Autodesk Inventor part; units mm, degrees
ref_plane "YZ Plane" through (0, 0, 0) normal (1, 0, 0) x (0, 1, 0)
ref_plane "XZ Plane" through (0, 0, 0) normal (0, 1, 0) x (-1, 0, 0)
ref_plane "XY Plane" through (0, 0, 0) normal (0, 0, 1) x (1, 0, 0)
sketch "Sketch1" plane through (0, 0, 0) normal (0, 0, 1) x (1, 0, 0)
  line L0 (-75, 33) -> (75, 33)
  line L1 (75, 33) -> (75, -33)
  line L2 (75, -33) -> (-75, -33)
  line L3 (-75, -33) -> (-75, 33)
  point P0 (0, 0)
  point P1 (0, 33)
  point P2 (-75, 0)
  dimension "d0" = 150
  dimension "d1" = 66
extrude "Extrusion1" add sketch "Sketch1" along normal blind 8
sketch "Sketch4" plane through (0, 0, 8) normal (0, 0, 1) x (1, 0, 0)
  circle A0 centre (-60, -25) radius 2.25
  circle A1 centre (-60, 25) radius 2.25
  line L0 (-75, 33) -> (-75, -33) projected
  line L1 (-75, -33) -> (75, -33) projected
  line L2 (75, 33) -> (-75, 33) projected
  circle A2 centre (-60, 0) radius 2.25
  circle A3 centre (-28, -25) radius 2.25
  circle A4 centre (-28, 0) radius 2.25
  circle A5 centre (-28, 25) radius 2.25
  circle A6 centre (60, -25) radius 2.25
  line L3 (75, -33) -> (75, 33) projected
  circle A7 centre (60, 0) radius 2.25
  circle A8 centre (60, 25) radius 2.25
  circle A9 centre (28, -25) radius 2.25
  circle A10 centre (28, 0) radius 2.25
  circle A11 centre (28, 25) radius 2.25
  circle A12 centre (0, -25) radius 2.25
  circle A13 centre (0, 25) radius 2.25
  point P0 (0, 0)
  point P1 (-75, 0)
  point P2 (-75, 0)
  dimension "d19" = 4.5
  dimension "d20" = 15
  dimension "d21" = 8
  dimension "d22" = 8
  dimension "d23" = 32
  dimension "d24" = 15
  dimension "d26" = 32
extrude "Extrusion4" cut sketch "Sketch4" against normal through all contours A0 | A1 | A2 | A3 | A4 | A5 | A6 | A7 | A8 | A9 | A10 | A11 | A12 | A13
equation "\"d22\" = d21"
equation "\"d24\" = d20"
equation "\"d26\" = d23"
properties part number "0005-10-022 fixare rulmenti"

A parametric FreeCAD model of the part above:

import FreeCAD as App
import Part
import Sketcher

V = App.Vector
Q = App.Units.Quantity

doc = App.newDocument("Part")
params = doc.addObject("Spreadsheet::Sheet", "Params")
for row, (alias, value) in enumerate([
    ("sketch1_width", "150 mm"),
    ("sketch1_height", "66 mm"),
    ("pad1_length", "8 mm"),
    ("sketch2_diameter", "4.5 mm"),
], start=1):
    params.set(f"A{row}", alias)
    params.set(f"B{row}", "=" + value)
    params.setAlias(f"B{row}", alias)

body = doc.addObject("PartDesign::Body", "Body")

# Sketch on XY plane
sketch1 = body.newObject("Sketcher::SketchObject", "Sketch")
sketch1.AttachmentSupport = (doc.getObject("XY_Plane"), [""])
sketch1.MapMode = "FlatFace"
sketch1.addGeometry(Part.LineSegment(V(75, 33, 0), V(-75, 33, 0)), False)
sketch1.addGeometry(Part.LineSegment(V(-75, 33, 0), V(-75, -33, 0)), False)
sketch1.addGeometry(Part.LineSegment(V(-75, -33, 0), V(75, -33, 0)), False)
sketch1.addGeometry(Part.LineSegment(V(75, -33, 0), V(75, 33, 0)), False)
sketch1.addConstraint(Sketcher.Constraint("Coincident", 0, 2, 1, 1))
sketch1.addConstraint(Sketcher.Constraint("Coincident", 1, 2, 2, 1))
sketch1.addConstraint(Sketcher.Constraint("Coincident", 2, 2, 3, 1))
sketch1.addConstraint(Sketcher.Constraint("Coincident", 3, 2, 0, 1))
sketch1.addConstraint(Sketcher.Constraint("Horizontal", 0))
sketch1.addConstraint(Sketcher.Constraint("Vertical", 1))
sketch1.addConstraint(Sketcher.Constraint("Horizontal", 2))
sketch1.addConstraint(Sketcher.Constraint("Vertical", 3))
sketch1.addConstraint(Sketcher.Constraint("Symmetric", 0, 2, 2, 2, -1, 1))
sketch1.addConstraint(Sketcher.Constraint("DistanceX", 0, 2, 0, 1, Q("150 mm")))
sketch1.addConstraint(Sketcher.Constraint("DistanceY", 1, 2, 1, 1, Q("66 mm")))
sketch1.setExpression("Constraints[9]", "Params.sketch1_width")
sketch1.setExpression("Constraints[10]", "Params.sketch1_height")
pad1 = body.newObject("PartDesign::Pad", "Pad")
pad1.Profile = sketch1
pad1.setExpression("Length", "Params.pad1_length")

# Sketch on XY plane
sketch2 = body.newObject("Sketcher::SketchObject", "Sketch001")
sketch2.AttachmentSupport = (doc.getObject("XY_Plane"), [""])
sketch2.MapMode = "FlatFace"
sketch2.AttachmentOffset = App.Placement(V(0, 0, 8), App.Rotation())
sketch2.addGeometry(Part.Circle(V(-60, -25, 0), V(0, 0, 1), 2.25), False)
sketch2.addGeometry(Part.Circle(V(-60, 25, 0), V(0, 0, 1), 2.25), False)
sketch2.addGeometry(Part.Circle(V(-60, 0, 0), V(0, 0, 1), 2.25), False)
sketch2.addGeometry(Part.Circle(V(-28, -25, 0), V(0, 0, 1), 2.25), False)
sketch2.addGeometry(Part.Circle(V(-28, 0, 0), V(0, 0, 1), 2.25), False)
sketch2.addGeometry(Part.Circle(V(-28, 25, 0), V(0, 0, 1), 2.25), False)
sketch2.addGeometry(Part.Circle(V(60, -25, 0), V(0, 0, 1), 2.25), False)
sketch2.addGeometry(Part.Circle(V(60, 0, 0), V(0, 0, 1), 2.25), False)
sketch2.addGeometry(Part.Circle(V(60, 25, 0), V(0, 0, 1), 2.25), False)
sketch2.addGeometry(Part.Circle(V(28, -25, 0), V(0, 0, 1), 2.25), False)
sketch2.addGeometry(Part.Circle(V(28, 0, 0), V(0, 0, 1), 2.25), False)
sketch2.addGeometry(Part.Circle(V(28, 25, 0), V(0, 0, 1), 2.25), False)
sketch2.addGeometry(Part.Circle(V(0, -25, 0), V(0, 0, 1), 2.25), False)
sketch2.addGeometry(Part.Circle(V(0, 25, 0), V(0, 0, 1), 2.25), False)
sketch2.addConstraint(Sketcher.Constraint("Equal", 0, 1))
sketch2.addConstraint(Sketcher.Constraint("Equal", 1, 2))
sketch2.addConstraint(Sketcher.Constraint("Equal", 2, 3))
sketch2.addConstraint(Sketcher.Constraint("Equal", 3, 4))
sketch2.addConstraint(Sketcher.Constraint("Equal", 4, 5))
sketch2.addConstraint(Sketcher.Constraint("Equal", 5, 6))
sketch2.addConstraint(Sketcher.Constraint("Equal", 6, 7))
sketch2.addConstraint(Sketcher.Constraint("Equal", 7, 8))
sketch2.addConstraint(Sketcher.Constraint("Equal", 8, 9))
sketch2.addConstraint(Sketcher.Constraint("Equal", 9, 10))
sketch2.addConstraint(Sketcher.Constraint("Equal", 10, 11))
sketch2.addConstraint(Sketcher.Constraint("Equal", 11, 12))
sketch2.addConstraint(Sketcher.Constraint("Equal", 12, 13))
sketch2.addConstraint(Sketcher.Constraint("Symmetric", 1, 3, 6, 3, -1, 1))
sketch2.addConstraint(Sketcher.Constraint("Symmetric", 2, 3, 7, 3, -1, 1))
sketch2.addConstraint(Sketcher.Constraint("Symmetric", 0, 3, 8, 3, -1, 1))
sketch2.addConstraint(Sketcher.Constraint("Symmetric", 5, 3, 9, 3, -1, 1))
sketch2.addConstraint(Sketcher.Constraint("Symmetric", 4, 3, 10, 3, -1, 1))
sketch2.addConstraint(Sketcher.Constraint("Symmetric", 3, 3, 11, 3, -1, 1))
sketch2.addConstraint(Sketcher.Constraint("Symmetric", 12, 3, 13, 3, -1, 1))
sketch2.addConstraint(Sketcher.Constraint("Symmetric", 0, 3, 6, 3, -2))
sketch2.addConstraint(Sketcher.Constraint("Symmetric", 3, 3, 9, 3, -2))
sketch2.addConstraint(Sketcher.Constraint("PointOnObject", 2, 3, -1))
sketch2.addConstraint(Sketcher.Constraint("PointOnObject", 4, 3, -1))
sketch2.addConstraint(Sketcher.Constraint("PointOnObject", 12, 3, -2))
sketch2.addConstraint(Sketcher.Constraint("Horizontal", 0, 3, 3, 3))
sketch2.addConstraint(Sketcher.Constraint("Horizontal", 9, 3, 12, 3))
sketch2.addConstraint(Sketcher.Constraint("Vertical", 1, 3, 2, 3))
sketch2.addConstraint(Sketcher.Constraint("Vertical", 3, 3, 4, 3))
sketch2.addConstraint(Sketcher.Constraint("Diameter", 0, Q("4.5 mm")))
sketch2.addConstraint(Sketcher.Constraint("DistanceX", 0, 3, 3, 3, Q("32 mm")))
sketch2.addConstraint(Sketcher.Constraint("DistanceX", 0, 3, -1, 1, Q("60 mm")))
sketch2.addConstraint(Sketcher.Constraint("DistanceY", 0, 3, -1, 1, Q("25 mm")))
sketch2.setExpression("Constraints[29]", "Params.sketch2_diameter")
pocket1 = body.newObject("PartDesign::Pocket", "Pocket")
pocket1.Profile = sketch2
pocket1.Type = "ThroughAll"

doc.recompute()
